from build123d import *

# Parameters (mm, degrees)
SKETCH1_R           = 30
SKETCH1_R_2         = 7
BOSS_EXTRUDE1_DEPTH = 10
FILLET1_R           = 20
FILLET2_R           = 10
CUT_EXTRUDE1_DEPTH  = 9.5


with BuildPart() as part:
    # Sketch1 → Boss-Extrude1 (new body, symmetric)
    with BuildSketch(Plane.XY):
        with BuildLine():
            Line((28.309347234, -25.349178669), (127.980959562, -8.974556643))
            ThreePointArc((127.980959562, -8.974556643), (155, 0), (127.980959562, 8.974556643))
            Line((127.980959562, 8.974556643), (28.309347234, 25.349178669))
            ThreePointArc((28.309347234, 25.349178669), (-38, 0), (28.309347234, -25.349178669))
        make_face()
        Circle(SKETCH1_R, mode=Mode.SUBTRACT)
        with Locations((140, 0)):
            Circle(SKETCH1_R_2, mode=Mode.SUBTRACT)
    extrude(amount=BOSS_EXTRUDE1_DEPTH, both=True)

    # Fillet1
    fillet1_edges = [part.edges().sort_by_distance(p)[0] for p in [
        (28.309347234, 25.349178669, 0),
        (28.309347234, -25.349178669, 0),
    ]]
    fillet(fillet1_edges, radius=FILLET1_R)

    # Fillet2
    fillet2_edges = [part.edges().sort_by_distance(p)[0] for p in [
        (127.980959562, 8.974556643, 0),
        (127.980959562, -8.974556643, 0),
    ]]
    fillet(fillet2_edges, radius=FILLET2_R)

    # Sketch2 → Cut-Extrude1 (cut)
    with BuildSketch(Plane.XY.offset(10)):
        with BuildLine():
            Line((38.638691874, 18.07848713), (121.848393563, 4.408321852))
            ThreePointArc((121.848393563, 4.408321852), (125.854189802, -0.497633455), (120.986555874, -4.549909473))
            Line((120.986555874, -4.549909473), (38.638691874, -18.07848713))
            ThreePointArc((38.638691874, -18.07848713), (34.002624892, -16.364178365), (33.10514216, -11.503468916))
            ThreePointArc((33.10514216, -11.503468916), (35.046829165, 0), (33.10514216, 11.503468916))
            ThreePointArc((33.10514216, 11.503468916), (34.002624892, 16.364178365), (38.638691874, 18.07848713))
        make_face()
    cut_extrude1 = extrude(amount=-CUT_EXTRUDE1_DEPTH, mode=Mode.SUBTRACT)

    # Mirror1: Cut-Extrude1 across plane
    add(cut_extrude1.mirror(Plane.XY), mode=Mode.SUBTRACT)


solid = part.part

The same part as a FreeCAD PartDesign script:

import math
import FreeCAD as App
import Part
import Sketcher


def edges_at(feature, points):
    """Names of the edges that pass closest to the given points."""
    edges = feature.Shape.Edges
    near = lambda p: min(range(len(edges)), key=lambda i: edges[i].distToShape(Part.Vertex(*p))[0])
    return sorted({f"Edge{near(p) + 1}" for p in points})

doc = App.newDocument("Part")
params = doc.addObject("Spreadsheet::Sheet", "Params")
for row, (alias, value) in enumerate([
    ("sketch1_diameter", "60 mm"),
    ("sketch1_diameter2", "14 mm"),
    ("sketch1_radius", "15 mm"),
    ("sketch1_radius2", "38 mm"),
    ("pad1_length", "20 mm"),
    ("fillet_radius", "20 mm"),
    ("fillet2_radius", "10 mm"),
    ("sketch2_radius", "5 mm"),
    ("sketch2_radius2", "5 mm"),
    ("sketch2_radius3", "4.5 mm"),
    ("pocket1_length", "9.5 mm"),
], start=1):
    params.set(f"A{row}", alias)
    params.set(f"B{row}", "=" + value)
    params.setAlias(f"B{row}", alias)

body = doc.addObject("PartDesign::Body", "Body")

sketch1 = doc.addObject("Sketcher::SketchObject", "Sketch")
body.addObject(sketch1)
sketch1.AttachmentSupport = (doc.XY_Plane, [""])
sketch1.MapMode = "FlatFace"
sketch1.addGeometry([
    Part.LineSegment(App.Vector(28, -25, 0), App.Vector(128, -9, 0)),
    Part.ArcOfCircle(Part.Circle(App.Vector(140, 0, 0), App.Vector(0, 0, 1), 15), math.radians(-143), math.radians(143)),
    Part.LineSegment(App.Vector(128, 9, 0), App.Vector(28, 25, 0)),
    Part.ArcOfCircle(Part.Circle(App.Vector(0, 0, 0), App.Vector(0, 0, 1), 38), math.radians(42), math.radians(318)),
    Part.Circle(App.Vector(0, 0, 0), App.Vector(0, 0, 1), 30),
    Part.Circle(App.Vector(140, 0, 0), App.Vector(0, 0, 1), 7),
], False)
sketch1.addConstraint([
    Sketcher.Constraint("Coincident", 0, 2, 1, 1),
    Sketcher.Constraint("Coincident", 1, 2, 2, 1),
    Sketcher.Constraint("Coincident", 2, 2, 3, 1),
    Sketcher.Constraint("Coincident", 3, 2, 0, 1),
    Sketcher.Constraint("Coincident", 3, 3, -1, 1),
    Sketcher.Constraint("Coincident", 4, 3, -1, 1),
    Sketcher.Constraint("Coincident", 5, 3, 1, 3),
    Sketcher.Constraint("Symmetric", 0, 2, 1, 2, -1),
    Sketcher.Constraint("Vertical", 2, 2, 3, 2),
    Sketcher.Constraint("Diameter", 4, 60.0),
    Sketcher.Constraint("Diameter", 5, 14.0),
    Sketcher.Constraint("Radius", 1, 15.0),
    Sketcher.Constraint("Radius", 3, 38.0),
    Sketcher.Constraint("DistanceX", -1, 1, 1, 3, 140.0),
    Sketcher.Constraint("DistanceX", -1, 1, 0, 2, 127.98096),
    Sketcher.Constraint("DistanceY", -1, 1, 2, 2, 25.349179),
])
sketch1.setExpression("Constraints[9]", "Params.sketch1_diameter")
sketch1.setExpression("Constraints[10]", "Params.sketch1_diameter2")
sketch1.setExpression("Constraints[11]", "Params.sketch1_radius")
sketch1.setExpression("Constraints[12]", "Params.sketch1_radius2")
pad1 = doc.addObject("PartDesign::Pad", "Pad")
body.addObject(pad1)
pad1.Profile = sketch1
pad1.setExpression("Length", "Params.pad1_length")
pad1.Midplane = True
doc.recompute()

fillet = doc.addObject("PartDesign::Fillet", "Fillet")
body.addObject(fillet)
fillet.Base = (pad1, edges_at(pad1, [(28.309, 25.349, 0), (28.309, -25.349, 0)]))
fillet.setExpression("Radius", "Params.fillet_radius")
doc.recompute()

fillet2 = doc.addObject("PartDesign::Fillet", "Fillet001")
body.addObject(fillet2)
fillet2.Base = (fillet, edges_at(fillet, [(127.981, 8.975, 0), (127.981, -8.975, 0)]))
fillet2.setExpression("Radius", "Params.fillet2_radius")

sketch2 = doc.addObject("Sketcher::SketchObject", "Sketch001")
body.addObject(sketch2)
sketch2.AttachmentSupport = (doc.XY_Plane, [""])
sketch2.MapMode = "FlatFace"
sketch2.AttachmentOffset = App.Placement(App.Vector(0, 0, 10), App.Rotation())
sketch2.addGeometry([
    Part.LineSegment(App.Vector(121.848394, 4.408322, 0), App.Vector(38.638692, 18.078487, 0)),
    Part.ArcOfCircle(Part.Circle(App.Vector(37.828129, 13.144626, 0), App.Vector(0, 0, 1), 5), math.radians(80.67046), math.radians(199.161462)),
    Part.ArcOfCircle(Part.Circle(App.Vector(0, 0, 0), App.Vector(0, 0, 1), 35.046829), math.radians(-19.161462), math.radians(19.161462)),
    Part.ArcOfCircle(Part.Circle(App.Vector(37.828129, -13.144626, 0), App.Vector(0, 0, 1), 5), math.radians(160.838538), math.radians(279.32954)),
    Part.LineSegment(App.Vector(38.638692, -18.078487, 0), App.Vector(120.986556, -4.549909, 0)),
    Part.ArcOfCircle(Part.Circle(App.Vector(121.374872, -0.066695, 0), App.Vector(0, 0, 1), 4.5), math.radians(-94.950345), math.radians(83.959748)),
], False)
sketch2.addConstraint([
    Sketcher.Constraint("Coincident", 0, 2, 1, 1),
    Sketcher.Constraint("Coincident", 1, 2, 2, 2),
    Sketcher.Constraint("Coincident", 2, 1, 3, 1),
    Sketcher.Constraint("Coincident", 3, 2, 4, 1),
    Sketcher.Constraint("Coincident", 4, 2, 5, 1),
    Sketcher.Constraint("Coincident", 5, 2, 0, 1),
    Sketcher.Constraint("Coincident", 2, 3, -1, 1),
    Sketcher.Constraint("Radius", 1, 5.0),
    Sketcher.Constraint("Radius", 3, 5.0),
    Sketcher.Constraint("Radius", 5, 4.5),
    Sketcher.Constraint("Radius", 2, 35.046829),
    Sketcher.Constraint("DistanceX", 0, 2, 5, 2, 83.209702),
    Sketcher.Constraint("Distance", 0, 84.325132),
    Sketcher.Constraint("Distance", 4, 83.451741),
    Sketcher.Constraint("DistanceX", -1, 1, 1, 3, 37.828129),
    Sketcher.Constraint("DistanceX", -1, 1, 3, 3, 37.828129),
    Sketcher.Constraint("DistanceX", -1, 1, 5, 3, 121.374872),
    Sketcher.Constraint("DistanceX", -1, 1, 0, 2, 38.638692),
    Sketcher.Constraint("DistanceY", -1, 1, 1, 2, 11.503469),
    Sketcher.Constraint("DistanceY", 2, 1, -1, 1, 11.503469),
    Sketcher.Constraint("DistanceX", -1, 1, 3, 2, 38.638692),
])
sketch2.setExpression("Constraints[7]", "Params.sketch2_radius")
sketch2.setExpression("Constraints[8]", "Params.sketch2_radius2")
sketch2.setExpression("Constraints[9]", "Params.sketch2_radius3")
pocket1 = doc.addObject("PartDesign::Pocket", "Pocket")
body.addObject(pocket1)
pocket1.Profile = sketch2
pocket1.setExpression("Length", "Params.pocket1_length")
doc.recompute()

mirrored = doc.addObject("PartDesign::Mirrored", "Mirrored")
body.addObject(mirrored)
mirrored.Originals = [pocket1]
mirrored.MirrorPlane = (doc.XY_Plane, [""])
body.Tip = mirrored

doc.recompute()
